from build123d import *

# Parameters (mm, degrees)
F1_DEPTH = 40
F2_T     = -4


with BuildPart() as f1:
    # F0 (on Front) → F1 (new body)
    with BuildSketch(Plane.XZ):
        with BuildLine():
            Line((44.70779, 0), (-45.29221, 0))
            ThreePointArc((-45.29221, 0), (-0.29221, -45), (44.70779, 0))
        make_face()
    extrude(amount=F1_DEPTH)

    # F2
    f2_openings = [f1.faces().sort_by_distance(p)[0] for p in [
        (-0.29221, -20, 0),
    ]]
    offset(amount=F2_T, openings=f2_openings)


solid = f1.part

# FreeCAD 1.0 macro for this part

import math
import FreeCAD as App
import Part
import Sketcher
from FreeCAD import Vector
Q = App.Units.Quantity


def faces_at(feature, points):
    """Names of the faces that lie closest to the given points."""
    faces = feature.Shape.Faces
    near = lambda p: min(range(len(faces)), key=lambda i: faces[i].distToShape(Part.Vertex(*p))[0])
    return sorted({f"Face{near(p) + 1}" for p in points})

doc = App.newDocument("Part")
body = doc.addObject("PartDesign::Body", "Body")

sketch1 = body.newObject("Sketcher::SketchObject", "Sketch")
sketch1.AttachmentSupport = (doc.getObject("XZ_Plane"), [""])
sketch1.MapMode = "FlatFace"
sketch1.addGeometry([
    Part.LineSegment(Vector(44.70779, 0, 0), Vector(-45.29221, 0, 0)),
    Part.ArcOfCircle(Part.Circle(Vector(-0.29221, 0, 0), Vector(0, 0, 1), 45), math.radians(180), math.radians(360)),
], False)
sketch1.addConstraint([
    Sketcher.Constraint("Coincident", 0, 1, 1, 2),
    Sketcher.Constraint("Coincident", 1, 1, 0, 2),
    Sketcher.Constraint("Horizontal", 0),
    Sketcher.Constraint("PointOnObject", 1, 3, -1),
    Sketcher.Constraint("PointOnObject", 0, 1, -1),
    Sketcher.Constraint("Radius", 1, Q("45 mm")),
    Sketcher.Constraint("DistanceX", 1, 3, -1, 1, Q("0.29221 mm")),
])
pad1 = body.newObject("PartDesign::Pad", "Pad")
pad1.Profile = sketch1
pad1.Length = 40
doc.recompute()

thickness = body.newObject("PartDesign::Thickness", "Thickness")
thickness.Base = (pad1, faces_at(pad1, [(-0.292, -20, 0)]))
thickness.Value = 4
thickness.Reversed = True
thickness.Join = "Arc"

doc.recompute()
